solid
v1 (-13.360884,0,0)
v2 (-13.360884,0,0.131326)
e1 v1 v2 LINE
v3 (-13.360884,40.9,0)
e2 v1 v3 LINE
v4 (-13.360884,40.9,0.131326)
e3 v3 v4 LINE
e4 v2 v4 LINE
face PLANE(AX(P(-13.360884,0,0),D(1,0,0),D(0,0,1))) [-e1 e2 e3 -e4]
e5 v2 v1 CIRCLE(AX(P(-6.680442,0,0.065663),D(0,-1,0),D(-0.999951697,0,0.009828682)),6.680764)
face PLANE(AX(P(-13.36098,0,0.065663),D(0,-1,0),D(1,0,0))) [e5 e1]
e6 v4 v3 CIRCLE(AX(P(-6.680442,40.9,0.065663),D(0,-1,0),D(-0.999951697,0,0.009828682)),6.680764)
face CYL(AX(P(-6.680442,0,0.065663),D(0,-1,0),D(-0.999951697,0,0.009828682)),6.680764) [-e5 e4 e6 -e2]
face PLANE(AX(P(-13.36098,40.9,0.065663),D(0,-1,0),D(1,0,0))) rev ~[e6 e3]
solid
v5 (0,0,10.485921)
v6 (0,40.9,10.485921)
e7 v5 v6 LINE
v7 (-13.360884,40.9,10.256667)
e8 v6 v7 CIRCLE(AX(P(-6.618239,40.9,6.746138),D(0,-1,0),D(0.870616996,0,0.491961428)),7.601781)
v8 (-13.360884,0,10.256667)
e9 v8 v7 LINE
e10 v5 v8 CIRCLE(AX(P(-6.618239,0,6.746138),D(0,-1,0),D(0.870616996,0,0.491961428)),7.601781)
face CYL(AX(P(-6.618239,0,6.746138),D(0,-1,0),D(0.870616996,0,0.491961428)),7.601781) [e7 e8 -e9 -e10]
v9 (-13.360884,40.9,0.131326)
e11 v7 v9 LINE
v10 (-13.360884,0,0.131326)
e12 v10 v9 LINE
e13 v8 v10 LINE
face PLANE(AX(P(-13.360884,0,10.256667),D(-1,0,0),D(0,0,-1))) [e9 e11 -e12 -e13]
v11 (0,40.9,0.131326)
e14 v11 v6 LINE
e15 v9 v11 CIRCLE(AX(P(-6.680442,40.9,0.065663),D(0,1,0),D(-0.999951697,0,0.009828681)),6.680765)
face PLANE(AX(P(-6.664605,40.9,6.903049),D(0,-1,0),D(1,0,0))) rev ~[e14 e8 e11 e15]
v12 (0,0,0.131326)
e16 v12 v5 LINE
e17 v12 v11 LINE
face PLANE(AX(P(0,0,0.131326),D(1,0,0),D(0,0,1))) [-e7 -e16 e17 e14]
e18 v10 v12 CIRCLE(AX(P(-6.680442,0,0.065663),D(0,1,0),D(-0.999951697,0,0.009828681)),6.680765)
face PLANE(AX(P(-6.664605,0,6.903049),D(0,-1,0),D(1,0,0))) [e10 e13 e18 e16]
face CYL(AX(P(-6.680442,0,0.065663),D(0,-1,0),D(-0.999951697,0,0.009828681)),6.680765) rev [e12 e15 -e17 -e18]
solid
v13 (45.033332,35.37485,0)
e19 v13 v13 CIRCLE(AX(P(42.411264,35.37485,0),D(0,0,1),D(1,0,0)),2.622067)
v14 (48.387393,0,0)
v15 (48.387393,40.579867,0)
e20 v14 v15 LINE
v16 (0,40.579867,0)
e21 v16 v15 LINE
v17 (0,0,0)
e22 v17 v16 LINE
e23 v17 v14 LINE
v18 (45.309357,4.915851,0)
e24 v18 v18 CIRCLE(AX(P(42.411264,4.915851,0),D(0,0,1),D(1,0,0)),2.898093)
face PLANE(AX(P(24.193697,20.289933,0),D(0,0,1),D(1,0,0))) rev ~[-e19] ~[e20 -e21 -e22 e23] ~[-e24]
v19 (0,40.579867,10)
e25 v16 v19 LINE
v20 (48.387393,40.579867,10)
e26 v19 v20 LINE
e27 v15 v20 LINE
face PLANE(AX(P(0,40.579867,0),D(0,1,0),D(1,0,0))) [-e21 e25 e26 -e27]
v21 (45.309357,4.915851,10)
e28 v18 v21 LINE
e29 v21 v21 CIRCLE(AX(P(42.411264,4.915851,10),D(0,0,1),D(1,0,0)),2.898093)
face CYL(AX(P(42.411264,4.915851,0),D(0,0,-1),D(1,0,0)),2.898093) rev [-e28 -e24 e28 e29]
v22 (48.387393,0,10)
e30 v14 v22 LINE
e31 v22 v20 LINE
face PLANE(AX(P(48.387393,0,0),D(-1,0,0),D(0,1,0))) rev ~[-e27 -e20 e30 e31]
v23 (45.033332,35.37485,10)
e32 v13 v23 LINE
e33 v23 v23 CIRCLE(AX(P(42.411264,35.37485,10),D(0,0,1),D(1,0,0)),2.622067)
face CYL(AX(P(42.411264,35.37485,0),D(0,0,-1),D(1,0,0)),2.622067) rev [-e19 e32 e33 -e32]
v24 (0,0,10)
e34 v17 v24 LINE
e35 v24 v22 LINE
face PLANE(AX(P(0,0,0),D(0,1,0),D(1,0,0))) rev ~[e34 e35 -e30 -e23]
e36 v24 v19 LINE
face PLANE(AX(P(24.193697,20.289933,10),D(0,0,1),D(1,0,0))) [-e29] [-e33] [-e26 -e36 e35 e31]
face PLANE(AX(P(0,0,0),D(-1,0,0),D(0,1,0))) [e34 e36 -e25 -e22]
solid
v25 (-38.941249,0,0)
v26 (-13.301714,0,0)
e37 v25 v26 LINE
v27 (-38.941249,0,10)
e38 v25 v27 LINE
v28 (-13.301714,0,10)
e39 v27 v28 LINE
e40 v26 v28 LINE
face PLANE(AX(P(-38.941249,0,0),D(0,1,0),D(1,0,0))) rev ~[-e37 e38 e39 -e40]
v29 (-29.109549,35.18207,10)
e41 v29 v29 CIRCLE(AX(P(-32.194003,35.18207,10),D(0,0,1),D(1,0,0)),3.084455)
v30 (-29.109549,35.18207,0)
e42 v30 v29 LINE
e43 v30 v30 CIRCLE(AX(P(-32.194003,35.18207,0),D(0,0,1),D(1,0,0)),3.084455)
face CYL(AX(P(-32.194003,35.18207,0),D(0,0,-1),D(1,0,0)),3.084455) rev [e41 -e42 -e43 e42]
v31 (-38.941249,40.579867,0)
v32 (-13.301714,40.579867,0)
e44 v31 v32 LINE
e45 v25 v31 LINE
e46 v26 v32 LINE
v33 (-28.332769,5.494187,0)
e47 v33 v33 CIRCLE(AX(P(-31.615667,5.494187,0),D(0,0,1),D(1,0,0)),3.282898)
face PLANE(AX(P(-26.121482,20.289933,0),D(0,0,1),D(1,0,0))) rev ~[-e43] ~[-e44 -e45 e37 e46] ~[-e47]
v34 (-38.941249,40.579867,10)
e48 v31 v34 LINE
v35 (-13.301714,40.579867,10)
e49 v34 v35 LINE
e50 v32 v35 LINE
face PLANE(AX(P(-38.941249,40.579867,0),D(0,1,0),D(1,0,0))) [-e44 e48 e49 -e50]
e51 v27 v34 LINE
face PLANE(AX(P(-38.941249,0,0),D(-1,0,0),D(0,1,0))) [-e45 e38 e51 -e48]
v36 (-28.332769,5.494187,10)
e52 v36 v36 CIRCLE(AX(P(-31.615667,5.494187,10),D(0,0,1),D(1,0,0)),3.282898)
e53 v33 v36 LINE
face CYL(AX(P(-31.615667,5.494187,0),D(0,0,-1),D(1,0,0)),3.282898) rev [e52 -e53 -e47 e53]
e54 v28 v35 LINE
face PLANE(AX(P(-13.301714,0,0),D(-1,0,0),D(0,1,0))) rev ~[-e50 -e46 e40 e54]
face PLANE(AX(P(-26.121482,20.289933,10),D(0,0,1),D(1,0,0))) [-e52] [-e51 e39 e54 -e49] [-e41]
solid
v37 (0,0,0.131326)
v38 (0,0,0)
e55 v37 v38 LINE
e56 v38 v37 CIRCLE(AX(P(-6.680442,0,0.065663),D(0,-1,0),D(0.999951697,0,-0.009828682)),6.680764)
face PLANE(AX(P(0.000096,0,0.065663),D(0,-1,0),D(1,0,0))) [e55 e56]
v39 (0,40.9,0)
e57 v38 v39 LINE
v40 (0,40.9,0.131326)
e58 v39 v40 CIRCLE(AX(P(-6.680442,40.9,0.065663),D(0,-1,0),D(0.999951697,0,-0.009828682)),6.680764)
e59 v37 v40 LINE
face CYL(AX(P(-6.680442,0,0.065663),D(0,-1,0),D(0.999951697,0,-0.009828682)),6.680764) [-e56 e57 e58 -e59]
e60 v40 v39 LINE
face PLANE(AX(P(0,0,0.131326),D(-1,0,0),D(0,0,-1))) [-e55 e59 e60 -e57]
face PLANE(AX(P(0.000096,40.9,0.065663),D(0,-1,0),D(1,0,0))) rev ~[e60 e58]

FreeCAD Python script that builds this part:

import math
import FreeCAD as App
import Part
import Sketcher
from FreeCAD import Vector
Q = App.Units.Quantity


def add_polygon(sketch, points):
    """Adds a closed chain of lines whose ends are joined by coincident constraints."""
    first, n = sketch.GeometryCount, len(points)
    for a, b in zip(points, points[1:] + points[:1]):
        sketch.addGeometry(Part.LineSegment(App.Vector(*a, 0), App.Vector(*b, 0)), False)
    for i in range(n):
        sketch.addConstraint(Sketcher.Constraint("Coincident", first + i, 2, first + (i + 1) % n, 1))

doc = App.newDocument("Part")
body = doc.addObject("PartDesign::Body", "Body")

# Sketch on XY plane
sketch1 = body.newObject("Sketcher::SketchObject", "Sketch")
sketch1.AttachmentSupport = (doc.getObject("XY_Plane"), [""])
sketch1.MapMode = "FlatFace"
add_polygon(sketch1, [(-38.9, 40.6), (-38.9, 0), (-13.3, 0), (-13.3, 40.6)])  # lines 0-3
sketch1.addGeometry(Part.Circle(Vector(-31.6, 5.5, 0), Vector(0, 0, 1), 3.3), False)  # 4
sketch1.addGeometry(Part.Circle(Vector(-32.2, 35.2, 0), Vector(0, 0, 1), 3.1), False)  # 5
sketch1.addConstraint(Sketcher.Constraint("Vertical", 0))
sketch1.addConstraint(Sketcher.Constraint("Horizontal", 1))
sketch1.addConstraint(Sketcher.Constraint("Vertical", 2))
sketch1.addConstraint(Sketcher.Constraint("Horizontal", 3))
sketch1.addConstraint(Sketcher.Constraint("PointOnObject", 0, 2, -1))
sketch1.addConstraint(Sketcher.Constraint("Diameter", 5, Q("6.168909 mm")))
sketch1.addConstraint(Sketcher.Constraint("Diameter", 4, Q("6.565796 mm")))
sketch1.addConstraint(Sketcher.Constraint("DistanceX", 1, 1, 1, 2, Q("25.639535 mm")))
sketch1.addConstraint(Sketcher.Constraint("DistanceY", 0, 2, 0, 1, Q("40.579867 mm")))
sketch1.addConstraint(Sketcher.Constraint("DistanceY", -1, 1, 5, 3, Q("35.18207 mm")))
sketch1.addConstraint(Sketcher.Constraint("DistanceX", 0, 2, -1, 1, Q("38.941249 mm")))
sketch1.addConstraint(Sketcher.Constraint("DistanceX", 5, 3, 1, 2, Q("18.892289 mm")))
sketch1.addConstraint(Sketcher.Constraint("DistanceY", 4, 3, 2, 2, Q("35.08568 mm")))
sketch1.addConstraint(Sketcher.Constraint("DistanceX", 4, 3, -1, 1, Q("31.615667 mm")))
pad1 = body.newObject("PartDesign::Pad", "Pad")
pad1.Profile = sketch1
pad1.Length = 10
body2 = doc.addObject("PartDesign::Body", "Body001")

# Sketch on XY plane
sketch2 = body2.newObject("Sketcher::SketchObject", "Sketch001")
sketch2.AttachmentSupport = (doc.getObject("XY_Plane001"), [""])
sketch2.MapMode = "FlatFace"
add_polygon(sketch2, [(0, 40.6), (0, 0), (48.4, 0), (48.4, 40.6)])  # lines 0-3
sketch2.addGeometry(Part.Circle(Vector(42.4, 4.9, 0), Vector(0, 0, 1), 2.9), False)  # 4
sketch2.addGeometry(Part.Circle(Vector(42.4, 35.4, 0), Vector(0, 0, 1), 2.6), False)  # 5
sketch2.addConstraint(Sketcher.Constraint("Vertical", 0))
sketch2.addConstraint(Sketcher.Constraint("Horizontal", 1))
sketch2.addConstraint(Sketcher.Constraint("Vertical", 2))
sketch2.addConstraint(Sketcher.Constraint("Horizontal", 3))
sketch2.addConstraint(Sketcher.Constraint("Coincident", 0, 2, -1, 1))
sketch2.addConstraint(Sketcher.Constraint("Vertical", 4, 3, 5, 3))
sketch2.addConstraint(Sketcher.Constraint("Diameter", 4, Q("5.796187 mm")))
sketch2.addConstraint(Sketcher.Constraint("Diameter", 5, Q("5.244135 mm")))
sketch2.addConstraint(Sketcher.Constraint("DistanceY", 4, 3, 5, 3, Q("30.458999 mm")))
sketch2.addConstraint(Sketcher.Constraint("DistanceX", 1, 1, 1, 2, Q("48.387393 mm")))
sketch2.addConstraint(Sketcher.Constraint("DistanceY", 0, 2, 0, 1, Q("40.579867 mm")))
sketch2.addConstraint(Sketcher.Constraint("DistanceY", -1, 1, 4, 3, Q("4.915851 mm")))
sketch2.addConstraint(Sketcher.Constraint("DistanceX", 4, 3, 1, 2, Q("5.976129 mm")))
pad2 = body2.newObject("PartDesign::Pad", "Pad001")
pad2.Profile = sketch2
pad2.Length = 10
body3 = doc.addObject("PartDesign::Body", "Body002")

# Sketch on XZ plane
sketch3 = body3.newObject("Sketcher::SketchObject", "Sketch002")
sketch3.AttachmentSupport = (doc.getObject("XZ_Plane002"), [""])
sketch3.MapMode = "FlatFace"
sketch3.addGeometry(Part.LineSegment(Vector(0, 0.131326, 0), Vector(0, 10.485921, 0)), False)
sketch3.addGeometry(Part.ArcOfCircle(Part.Circle(Vector(-6.618239, 6.746138, 0), Vector(0, 0, 1), 7.601781), math.radians(29.469582), math.radians(152.496458)), False)
sketch3.addGeometry(Part.LineSegment(Vector(-13.360884, 10.256667, 0), Vector(-13.360884, 0.131326, 0)), False)
sketch3.addGeometry(Part.ArcOfCircle(Part.Circle(Vector(-6.680442, 0.065663, 0), Vector(0, 0, 1), 6.680765), math.radians(0.563151), math.radians(179.436849)), False)
sketch3.addConstraint(Sketcher.Constraint("Coincident", 0, 2, 1, 1))
sketch3.addConstraint(Sketcher.Constraint("Coincident", 1, 2, 2, 1))
sketch3.addConstraint(Sketcher.Constraint("Coincident", 2, 2, 3, 2))
sketch3.addConstraint(Sketcher.Constraint("Coincident", 3, 1, 0, 1))
sketch3.addConstraint(Sketcher.Constraint("Vertical", 0))
sketch3.addConstraint(Sketcher.Constraint("Vertical", 2))
sketch3.addConstraint(Sketcher.Constraint("PointOnObject", 0, 2, -2))
sketch3.addConstraint(Sketcher.Constraint("Radius", 1, Q("7.601781 mm")))
sketch3.addConstraint(Sketcher.Constraint("Radius", 3, Q("6.680765 mm")))
sketch3.addConstraint(Sketcher.Constraint("DistanceY", 2, 2, 2, 1, Q("10.12534 mm")))
sketch3.addConstraint(Sketcher.Constraint("DistanceY", 0, 1, 0, 2, Q("10.354595 mm")))
sketch3.addConstraint(Sketcher.Constraint("DistanceX", 1, 3, -1, 1, Q("6.618239 mm")))
sketch3.addConstraint(Sketcher.Constraint("DistanceY", -1, 1, 1, 3, Q("6.746138 mm")))
sketch3.addConstraint(Sketcher.Constraint("DistanceY", 1, 3, 1, 2, Q("3.510528 mm")))
pad3 = body3.newObject("PartDesign::Pad", "Pad002")
pad3.Profile = sketch3
pad3.Length = 40.9
pad3.Reversed = True
body4 = doc.addObject("PartDesign::Body", "Body003")

# Sketch on XZ plane
sketch4 = body4.newObject("Sketcher::SketchObject", "Sketch003")
sketch4.AttachmentSupport = (doc.getObject("XZ_Plane003"), [""])
sketch4.MapMode = "FlatFace"
sketch4.addGeometry(Part.ArcOfCircle(Part.Circle(Vector(-6.68, 0.07, 0), Vector(0, 0, 1), 6.68), math.radians(-0.56), math.radians(0.56)), False)
sketch4.addGeometry(Part.LineSegment(Vector(0, 0.13, 0), Vector(0, 0, 0)), False)
sketch4.addConstraint(Sketcher.Constraint("Coincident", 0, 1, 1, 2))
sketch4.addConstraint(Sketcher.Constraint("Coincident", 1, 1, 0, 2))
sketch4.addConstraint(Sketcher.Constraint("Vertical", 1))
sketch4.addConstraint(Sketcher.Constraint("Coincident", 0, 1, -1, 1))
sketch4.addConstraint(Sketcher.Constraint("Radius", 0, Q("6.680764 mm")))
sketch4.addConstraint(Sketcher.Constraint("DistanceY", 1, 2, 1, 1, Q("0.131326 mm")))
pad4 = body4.newObject("PartDesign::Pad", "Pad003")
pad4.Profile = sketch4
pad4.Length = 40.9
pad4.Reversed = True
body5 = doc.addObject("PartDesign::Body", "Body004")

# Sketch on XZ plane
sketch5 = body5.newObject("Sketcher::SketchObject", "Sketch004")
sketch5.AttachmentSupport = (doc.getObject("XZ_Plane004"), [""])
sketch5.MapMode = "FlatFace"
sketch5.addGeometry(Part.LineSegment(Vector(-13.36, 0, 0), Vector(-13.36, 0.13, 0)), False)
sketch5.addGeometry(Part.ArcOfCircle(Part.Circle(Vector(-6.68, 0.07, 0), Vector(0, 0, 1), 6.68), math.radians(179.44), math.radians(180.56)), False)
sketch5.addConstraint(Sketcher.Constraint("Coincident", 0, 1, 1, 2))
sketch5.addConstraint(Sketcher.Constraint("Coincident", 1, 1, 0, 2))
sketch5.addConstraint(Sketcher.Constraint("Vertical", 0))
sketch5.addConstraint(Sketcher.Constraint("PointOnObject", 0, 1, -1))
sketch5.addConstraint(Sketcher.Constraint("Radius", 1, Q("6.680764 mm")))
sketch5.addConstraint(Sketcher.Constraint("DistanceY", 0, 1, 0, 2, Q("0.131326 mm")))
sketch5.addConstraint(Sketcher.Constraint("DistanceX", 1, 3, -1, 1, Q("6.680442 mm")))
pad5 = body5.newObject("PartDesign::Pad", "Pad004")
pad5.Profile = sketch5
pad5.Length = 40.9
pad5.Reversed = True

doc.recompute()
